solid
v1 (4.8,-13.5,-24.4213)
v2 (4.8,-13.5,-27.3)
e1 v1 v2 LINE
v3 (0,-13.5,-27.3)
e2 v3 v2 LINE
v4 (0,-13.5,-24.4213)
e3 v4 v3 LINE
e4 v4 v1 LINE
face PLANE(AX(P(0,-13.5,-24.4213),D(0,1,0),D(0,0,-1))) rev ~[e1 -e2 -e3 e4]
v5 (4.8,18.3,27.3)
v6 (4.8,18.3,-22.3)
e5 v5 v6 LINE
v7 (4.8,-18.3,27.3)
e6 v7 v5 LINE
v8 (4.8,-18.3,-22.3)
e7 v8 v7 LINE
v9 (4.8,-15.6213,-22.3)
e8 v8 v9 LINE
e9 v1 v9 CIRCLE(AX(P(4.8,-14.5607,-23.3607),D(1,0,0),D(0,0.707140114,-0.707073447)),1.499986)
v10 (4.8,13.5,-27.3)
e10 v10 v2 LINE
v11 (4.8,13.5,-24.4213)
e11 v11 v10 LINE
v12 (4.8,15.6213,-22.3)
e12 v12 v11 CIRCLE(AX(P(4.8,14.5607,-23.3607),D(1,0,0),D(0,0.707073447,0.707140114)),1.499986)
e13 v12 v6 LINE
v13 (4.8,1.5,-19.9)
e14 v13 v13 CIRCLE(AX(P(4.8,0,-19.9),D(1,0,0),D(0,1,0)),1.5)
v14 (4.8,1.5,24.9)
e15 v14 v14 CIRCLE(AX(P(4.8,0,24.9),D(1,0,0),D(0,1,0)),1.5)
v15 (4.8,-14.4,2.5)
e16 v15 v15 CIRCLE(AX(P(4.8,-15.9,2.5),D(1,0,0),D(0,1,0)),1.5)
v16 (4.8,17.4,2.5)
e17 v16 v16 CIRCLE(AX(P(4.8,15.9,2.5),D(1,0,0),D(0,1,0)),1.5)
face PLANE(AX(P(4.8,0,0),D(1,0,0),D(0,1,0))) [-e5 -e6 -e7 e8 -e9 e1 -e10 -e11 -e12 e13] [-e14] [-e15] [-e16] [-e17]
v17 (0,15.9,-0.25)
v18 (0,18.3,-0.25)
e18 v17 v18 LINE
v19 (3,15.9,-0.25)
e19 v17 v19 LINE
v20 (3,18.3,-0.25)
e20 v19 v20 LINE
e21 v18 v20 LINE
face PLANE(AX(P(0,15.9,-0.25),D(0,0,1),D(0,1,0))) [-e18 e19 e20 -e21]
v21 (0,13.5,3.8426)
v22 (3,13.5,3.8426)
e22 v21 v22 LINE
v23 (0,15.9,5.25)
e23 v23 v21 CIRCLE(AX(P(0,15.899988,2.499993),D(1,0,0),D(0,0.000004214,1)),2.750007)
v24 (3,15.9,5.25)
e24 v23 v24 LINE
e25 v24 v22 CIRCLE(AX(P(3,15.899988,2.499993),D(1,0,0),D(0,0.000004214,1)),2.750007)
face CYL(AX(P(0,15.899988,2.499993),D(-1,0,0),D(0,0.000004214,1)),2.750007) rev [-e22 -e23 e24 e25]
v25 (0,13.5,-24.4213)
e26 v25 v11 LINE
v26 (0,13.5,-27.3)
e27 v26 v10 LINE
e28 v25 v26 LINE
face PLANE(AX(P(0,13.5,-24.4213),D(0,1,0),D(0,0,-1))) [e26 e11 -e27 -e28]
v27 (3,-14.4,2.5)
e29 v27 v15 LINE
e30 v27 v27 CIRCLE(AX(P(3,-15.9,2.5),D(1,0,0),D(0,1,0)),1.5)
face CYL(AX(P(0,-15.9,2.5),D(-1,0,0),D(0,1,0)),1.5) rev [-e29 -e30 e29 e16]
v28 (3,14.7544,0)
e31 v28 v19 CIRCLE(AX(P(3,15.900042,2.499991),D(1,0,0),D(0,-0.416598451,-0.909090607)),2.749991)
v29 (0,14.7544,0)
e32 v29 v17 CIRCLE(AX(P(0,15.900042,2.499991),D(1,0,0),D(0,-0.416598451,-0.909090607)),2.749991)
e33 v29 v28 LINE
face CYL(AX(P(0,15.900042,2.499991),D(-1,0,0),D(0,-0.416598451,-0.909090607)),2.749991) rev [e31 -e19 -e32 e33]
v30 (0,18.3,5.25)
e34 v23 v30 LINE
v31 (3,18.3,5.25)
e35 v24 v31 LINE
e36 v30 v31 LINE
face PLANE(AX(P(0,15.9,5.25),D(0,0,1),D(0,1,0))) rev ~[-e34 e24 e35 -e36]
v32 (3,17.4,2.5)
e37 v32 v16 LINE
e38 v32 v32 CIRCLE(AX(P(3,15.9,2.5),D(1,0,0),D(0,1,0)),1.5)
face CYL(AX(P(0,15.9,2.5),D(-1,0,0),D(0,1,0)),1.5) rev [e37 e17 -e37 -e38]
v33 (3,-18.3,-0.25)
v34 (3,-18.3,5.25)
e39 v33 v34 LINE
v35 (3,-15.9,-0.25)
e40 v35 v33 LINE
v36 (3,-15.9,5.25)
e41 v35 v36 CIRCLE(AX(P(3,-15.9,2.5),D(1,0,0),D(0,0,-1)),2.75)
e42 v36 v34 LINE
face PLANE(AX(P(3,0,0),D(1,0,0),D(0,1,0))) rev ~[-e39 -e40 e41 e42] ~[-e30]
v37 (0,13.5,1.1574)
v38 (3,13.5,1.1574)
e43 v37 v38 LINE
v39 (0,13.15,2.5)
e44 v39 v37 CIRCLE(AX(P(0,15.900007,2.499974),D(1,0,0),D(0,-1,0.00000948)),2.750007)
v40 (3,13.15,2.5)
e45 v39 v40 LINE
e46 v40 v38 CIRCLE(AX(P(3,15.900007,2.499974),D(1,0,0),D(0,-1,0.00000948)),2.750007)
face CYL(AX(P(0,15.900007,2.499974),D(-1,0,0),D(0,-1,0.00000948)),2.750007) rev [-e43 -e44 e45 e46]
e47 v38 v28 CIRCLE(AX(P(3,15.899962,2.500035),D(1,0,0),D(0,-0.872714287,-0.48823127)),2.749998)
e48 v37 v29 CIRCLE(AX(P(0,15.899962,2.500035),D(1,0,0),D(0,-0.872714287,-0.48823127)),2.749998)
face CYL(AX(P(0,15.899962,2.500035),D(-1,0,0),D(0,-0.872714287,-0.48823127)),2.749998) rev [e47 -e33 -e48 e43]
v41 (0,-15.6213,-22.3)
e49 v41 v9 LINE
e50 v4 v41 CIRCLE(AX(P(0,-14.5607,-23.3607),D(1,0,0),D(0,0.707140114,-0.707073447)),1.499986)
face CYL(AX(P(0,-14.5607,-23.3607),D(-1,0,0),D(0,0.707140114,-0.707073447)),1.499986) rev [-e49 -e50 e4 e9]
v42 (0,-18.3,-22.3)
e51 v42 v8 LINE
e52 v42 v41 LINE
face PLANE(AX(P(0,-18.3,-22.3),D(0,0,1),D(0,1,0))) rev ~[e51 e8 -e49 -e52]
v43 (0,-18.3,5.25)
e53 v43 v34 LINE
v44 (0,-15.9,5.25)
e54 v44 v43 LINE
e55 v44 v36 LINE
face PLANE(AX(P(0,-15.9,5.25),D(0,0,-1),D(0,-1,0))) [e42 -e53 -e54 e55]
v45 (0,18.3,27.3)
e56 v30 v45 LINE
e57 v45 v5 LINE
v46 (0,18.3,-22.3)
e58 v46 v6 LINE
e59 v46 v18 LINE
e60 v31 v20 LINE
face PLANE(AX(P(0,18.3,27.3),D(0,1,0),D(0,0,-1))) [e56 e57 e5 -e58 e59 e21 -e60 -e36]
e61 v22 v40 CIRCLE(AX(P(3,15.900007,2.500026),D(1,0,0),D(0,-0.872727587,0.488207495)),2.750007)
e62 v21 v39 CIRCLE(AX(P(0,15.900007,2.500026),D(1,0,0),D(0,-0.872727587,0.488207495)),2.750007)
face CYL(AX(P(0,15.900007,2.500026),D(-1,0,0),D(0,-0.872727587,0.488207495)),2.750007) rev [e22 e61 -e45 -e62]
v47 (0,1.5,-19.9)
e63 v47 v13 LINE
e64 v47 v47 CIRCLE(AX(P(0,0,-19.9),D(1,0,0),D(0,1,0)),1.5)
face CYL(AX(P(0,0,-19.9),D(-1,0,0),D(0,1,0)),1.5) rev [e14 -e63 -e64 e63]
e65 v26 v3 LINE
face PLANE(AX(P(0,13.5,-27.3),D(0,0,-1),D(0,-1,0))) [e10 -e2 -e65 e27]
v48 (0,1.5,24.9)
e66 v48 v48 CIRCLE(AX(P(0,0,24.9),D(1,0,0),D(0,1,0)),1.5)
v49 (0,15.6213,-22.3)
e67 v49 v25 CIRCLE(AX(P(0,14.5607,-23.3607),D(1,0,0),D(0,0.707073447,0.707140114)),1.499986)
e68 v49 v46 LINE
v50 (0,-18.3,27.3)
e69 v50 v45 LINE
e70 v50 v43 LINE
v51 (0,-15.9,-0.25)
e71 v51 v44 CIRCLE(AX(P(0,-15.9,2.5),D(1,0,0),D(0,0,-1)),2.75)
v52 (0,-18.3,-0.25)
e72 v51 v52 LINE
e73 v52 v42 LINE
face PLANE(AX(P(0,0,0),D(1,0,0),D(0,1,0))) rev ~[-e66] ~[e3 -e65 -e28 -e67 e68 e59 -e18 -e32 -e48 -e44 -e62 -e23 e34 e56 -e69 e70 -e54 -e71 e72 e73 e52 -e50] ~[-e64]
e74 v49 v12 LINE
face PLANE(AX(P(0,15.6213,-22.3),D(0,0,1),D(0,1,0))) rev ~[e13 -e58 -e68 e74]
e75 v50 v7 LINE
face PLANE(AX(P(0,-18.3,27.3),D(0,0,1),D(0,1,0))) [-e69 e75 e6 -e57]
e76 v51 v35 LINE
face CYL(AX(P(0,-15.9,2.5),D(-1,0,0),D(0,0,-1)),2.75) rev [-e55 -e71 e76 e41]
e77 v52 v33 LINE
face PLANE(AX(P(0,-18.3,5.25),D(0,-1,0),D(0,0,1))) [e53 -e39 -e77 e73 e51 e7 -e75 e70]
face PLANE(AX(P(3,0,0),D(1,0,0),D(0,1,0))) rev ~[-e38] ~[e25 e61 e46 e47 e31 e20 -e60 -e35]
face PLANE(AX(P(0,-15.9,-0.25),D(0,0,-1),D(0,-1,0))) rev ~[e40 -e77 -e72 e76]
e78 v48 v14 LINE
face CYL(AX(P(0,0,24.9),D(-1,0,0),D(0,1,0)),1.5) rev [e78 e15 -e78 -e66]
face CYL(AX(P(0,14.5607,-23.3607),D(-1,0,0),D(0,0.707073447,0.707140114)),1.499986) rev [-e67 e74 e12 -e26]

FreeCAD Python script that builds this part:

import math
import FreeCAD as App
import Part
import Sketcher

V = App.Vector

doc = App.newDocument("Part")
params = doc.addObject("Spreadsheet::Sheet", "Params")
for row, (alias, value) in enumerate([
    ("sketch1_diameter", "3 mm"),
    ("sketch1_width", "27 mm"),
    ("sketch1_height", "49.6 mm"),
    ("pad1_length", "4.8 mm"),
    ("sketch2_diameter", "3 mm"),
    ("sketch2_radius", "2.75 mm"),
    ("sketch2_width", "2.4 mm"),
    ("sketch2_width2", "2.4 mm"),
    ("pocket1_length", "3 mm"),
], start=1):
    params.set(f"A{row}", alias)
    params.set(f"B{row}", "=" + value)
    params.setAlias(f"B{row}", alias)

body = doc.addObject("PartDesign::Body", "Body")

# Sketch on YZ plane
sketch1 = body.newObject("Sketcher::SketchObject", "Sketch")
sketch1.AttachmentSupport = (doc.getObject("YZ_Plane"), [""])
sketch1.MapMode = "FlatFace"
sketch1.addGeometry([
    Part.LineSegment(V(18.3, 27.3, 0), V(-18.3, 27.3, 0)),  # 0
    Part.LineSegment(V(-18.3, 27.3, 0), V(-18.3, -22.3, 0)),  # 1
    Part.LineSegment(V(-18.3, -22.3, 0), V(-15.6, -22.3, 0)),  # 2
    Part.ArcOfCircle(Part.Circle(V(-14.6, -23.4, 0), V(0, 0, 1), 1.5), math.radians(-45), math.radians(135)),  # 3
    Part.LineSegment(V(-13.5, -24.4, 0), V(-13.5, -27.3, 0)),  # 4
    Part.LineSegment(V(-13.5, -27.3, 0), V(13.5, -27.3, 0)),  # 5
    Part.LineSegment(V(13.5, -27.3, 0), V(13.5, -24.4, 0)),  # 6
    Part.ArcOfCircle(Part.Circle(V(14.6, -23.4, 0), V(0, 0, 1), 1.5), math.radians(45), math.radians(225)),  # 7
    Part.LineSegment(V(15.6, -22.3, 0), V(18.3, -22.3, 0)),  # 8
    Part.LineSegment(V(18.3, -22.3, 0), V(18.3, 27.3, 0)),  # 9
    Part.Circle(V(0, -19.9, 0), V(0, 0, 1), 1.5),  # 10
    Part.Circle(V(0, 24.9, 0), V(0, 0, 1), 1.5),  # 11
    Part.Circle(V(15.9, 2.5, 0), V(0, 0, 1), 1.5),  # 12
    Part.Circle(V(-15.9, 2.5, 0), V(0, 0, 1), 1.5),  # 13
], False)
sketch1.addConstraint([
    Sketcher.Constraint("Coincident", 0, 2, 1, 1),
    Sketcher.Constraint("Coincident", 1, 2, 2, 1),
    Sketcher.Constraint("Coincident", 2, 2, 3, 2),
    Sketcher.Constraint("Coincident", 3, 1, 4, 1),
    Sketcher.Constraint("Coincident", 4, 2, 5, 1),
    Sketcher.Constraint("Coincident", 5, 2, 6, 1),
    Sketcher.Constraint("Coincident", 6, 2, 7, 2),
    Sketcher.Constraint("Coincident", 7, 1, 8, 1),
    Sketcher.Constraint("Coincident", 8, 2, 9, 1),
    Sketcher.Constraint("Coincident", 9, 2, 0, 1),
    Sketcher.Constraint("Horizontal", 0),
    Sketcher.Constraint("Vertical", 1),
    Sketcher.Constraint("Horizontal", 2),
    Sketcher.Constraint("Vertical", 4),
    Sketcher.Constraint("Horizontal", 5),
    Sketcher.Constraint("Vertical", 6),
    Sketcher.Constraint("Horizontal", 8),
    Sketcher.Constraint("Vertical", 9),
    Sketcher.Constraint("Equal", 3, 7),
    Sketcher.Constraint("Equal", 7, 10),
    Sketcher.Constraint("Equal", 10, 11),
    Sketcher.Constraint("Equal", 11, 12),
    Sketcher.Constraint("Equal", 12, 13),
    Sketcher.Constraint("Symmetric", 3, 3, 7, 3, -2),
    Sketcher.Constraint("Symmetric", 12, 3, 13, 3, -2),
    Sketcher.Constraint("Symmetric", 1, 2, 8, 2, -2),
    Sketcher.Constraint("PointOnObject", 10, 3, -2),
    Sketcher.Constraint("PointOnObject", 11, 3, -2),
    Sketcher.Constraint("Horizontal", 3, 1, 6, 2),
    Sketcher.Constraint("Diameter", 10, 3.0),
    Sketcher.Constraint("DistanceX", 5, 1, 5, 2, 27.0),
    Sketcher.Constraint("DistanceY", 4, 2, 2, 2, 5.0),
    Sketcher.Constraint("DistanceY", -1, 1, 12, 3, 2.5),
    Sketcher.Constraint("DistanceY", 11, 3, 0, 2, 2.4),
    Sketcher.Constraint("DistanceX", 0, 2, 13, 3, 2.4),
    Sketcher.Constraint("DistanceY", 1, 2, 10, 3, 2.4),
    Sketcher.Constraint("DistanceX", 1, 2, 3, 1, 4.8),
    Sketcher.Constraint("DistanceY", 1, 2, 1, 1, 49.6),
    Sketcher.Constraint("DistanceY", 10, 3, -1, 1, 19.9),
    Sketcher.Constraint("DistanceX", 2, 1, 2, 2, 2.6787),
    Sketcher.Constraint("DistanceX", 2, 2, 7, 3, 30.182),
])
sketch1.setExpression("Constraints[29]", "Params.sketch1_diameter")
sketch1.setExpression("Constraints[30]", "Params.sketch1_width")
sketch1.setExpression("Constraints[37]", "Params.sketch1_height")
pad1 = body.newObject("PartDesign::Pad", "Pad")
pad1.Profile = sketch1
pad1.setExpression("Length", "Params.pad1_length")

# Sketch on YZ plane
sketch2 = body.newObject("Sketcher::SketchObject", "Sketch001")
sketch2.AttachmentSupport = (doc.getObject("YZ_Plane"), [""])
sketch2.MapMode = "FlatFace"
sketch2.addGeometry([
    Part.LineSegment(V(-15.9, 5.2, 0), V(-18.3, 5.2, 0)),  # 0
    Part.LineSegment(V(-18.3, 5.2, 0), V(-18.3, -0.2, 0)),  # 1
    Part.LineSegment(V(-18.3, -0.2, 0), V(-15.9, -0.2, 0)),  # 2
    Part.ArcOfCircle(Part.Circle(V(-15.9, 2.5, 0), V(0, 0, 1), 2.8), math.radians(-90), math.radians(90)),  # 3
    Part.Circle(V(-15.9, 2.5, 0), V(0, 0, 1), 1.5),  # 4
    Part.LineSegment(V(18.3, 5.2, 0), V(15.9, 5.2, 0)),  # 5
    Part.ArcOfCircle(Part.Circle(V(15.9, 2.5, 0), V(0, 0, 1), 2.8), math.radians(90), math.radians(151)),  # 6
    Part.ArcOfCircle(Part.Circle(V(15.9, 2.5, 0), V(0, 0, 1), 2.7), math.radians(151), math.radians(180)),  # 7
    Part.ArcOfCircle(Part.Circle(V(15.9, 2.5, 0), V(0, 0, 1), 2.8), math.radians(180), math.radians(209)),  # 8
    Part.ArcOfCircle(Part.Circle(V(15.9, 2.5, 0), V(0, 0, 1), 2.7), math.radians(-151), math.radians(-115)),  # 9
    Part.ArcOfCircle(Part.Circle(V(15.9, 2.5, 0), V(0, 0, 1), 2.8), math.radians(-115), math.radians(-90)),  # 10
    Part.LineSegment(V(15.9, -0.2, 0), V(18.3, -0.2, 0)),  # 11
    Part.LineSegment(V(18.3, -0.2, 0), V(18.3, 5.2, 0)),  # 12
    Part.Circle(V(15.9, 2.5, 0), V(0, 0, 1), 1.5),  # 13
], False)
sketch2.addConstraint([
    Sketcher.Constraint("Coincident", 0, 2, 1, 1),
    Sketcher.Constraint("Coincident", 1, 2, 2, 1),
    Sketcher.Constraint("Tangent", 2, 2, 3, 1),
    Sketcher.Constraint("Tangent", 3, 2, 0, 1),
    Sketcher.Constraint("Tangent", 5, 2, 6, 1),
    Sketcher.Constraint("Tangent", 6, 2, 7, 1),
    Sketcher.Constraint("Tangent", 7, 2, 8, 1),
    Sketcher.Constraint("Tangent", 8, 2, 9, 1),
    Sketcher.Constraint("Tangent", 9, 2, 10, 1),
    Sketcher.Constraint("Tangent", 10, 2, 11, 1),
    Sketcher.Constraint("Coincident", 11, 2, 12, 1),
    Sketcher.Constraint("Coincident", 12, 2, 5, 1),
    Sketcher.Constraint("Horizontal", 0),
    Sketcher.Constraint("Vertical", 1),
    Sketcher.Constraint("Horizontal", 2),
    Sketcher.Constraint("Horizontal", 5),
    Sketcher.Constraint("Horizontal", 11),
    Sketcher.Constraint("Vertical", 12),
    Sketcher.Constraint("Coincident", 4, 3, 3, 3),
    Sketcher.Constraint("Coincident", 8, 3, 6, 3),
    Sketcher.Constraint("Coincident", 10, 3, 6, 3),
    Sketcher.Constraint("Coincident", 13, 3, 6, 3),
    Sketcher.Constraint("Equal", 3, 6),
    Sketcher.Constraint("Equal", 4, 13),
    Sketcher.Constraint("Symmetric", 3, 3, 6, 3, -2),
    Sketcher.Constraint("PointOnObject", 9, 2, -1),
    Sketcher.Constraint("Horizontal", 13, 3, 7, 2),
    Sketcher.Constraint("Vertical", 6, 2, 8, 2),
    Sketcher.Constraint("Equal", 2, 5),
    Sketcher.Constraint("Diameter", 4, 3.0),
    Sketcher.Constraint("Radius", 3, 2.75),
    Sketcher.Constraint("DistanceX", 0, 2, 0, 1, 2.4),
    Sketcher.Constraint("DistanceY", -1, 1, 3, 3, 2.5),
    Sketcher.Constraint("DistanceX", 6, 2, 6, 3, 2.4),
    Sketcher.Constraint("DistanceX", 3, 3, -1, 1, 15.9),
])
sketch2.setExpression("Constraints[29]", "Params.sketch2_diameter")
sketch2.setExpression("Constraints[30]", "Params.sketch2_radius")
sketch2.setExpression("Constraints[31]", "Params.sketch2_width")
sketch2.setExpression("Constraints[33]", "Params.sketch2_width2")
pocket1 = body.newObject("PartDesign::Pocket", "Pocket")
pocket1.Profile = sketch2
pocket1.setExpression("Length", "Params.pocket1_length")
pocket1.Reversed = True

doc.recompute()
